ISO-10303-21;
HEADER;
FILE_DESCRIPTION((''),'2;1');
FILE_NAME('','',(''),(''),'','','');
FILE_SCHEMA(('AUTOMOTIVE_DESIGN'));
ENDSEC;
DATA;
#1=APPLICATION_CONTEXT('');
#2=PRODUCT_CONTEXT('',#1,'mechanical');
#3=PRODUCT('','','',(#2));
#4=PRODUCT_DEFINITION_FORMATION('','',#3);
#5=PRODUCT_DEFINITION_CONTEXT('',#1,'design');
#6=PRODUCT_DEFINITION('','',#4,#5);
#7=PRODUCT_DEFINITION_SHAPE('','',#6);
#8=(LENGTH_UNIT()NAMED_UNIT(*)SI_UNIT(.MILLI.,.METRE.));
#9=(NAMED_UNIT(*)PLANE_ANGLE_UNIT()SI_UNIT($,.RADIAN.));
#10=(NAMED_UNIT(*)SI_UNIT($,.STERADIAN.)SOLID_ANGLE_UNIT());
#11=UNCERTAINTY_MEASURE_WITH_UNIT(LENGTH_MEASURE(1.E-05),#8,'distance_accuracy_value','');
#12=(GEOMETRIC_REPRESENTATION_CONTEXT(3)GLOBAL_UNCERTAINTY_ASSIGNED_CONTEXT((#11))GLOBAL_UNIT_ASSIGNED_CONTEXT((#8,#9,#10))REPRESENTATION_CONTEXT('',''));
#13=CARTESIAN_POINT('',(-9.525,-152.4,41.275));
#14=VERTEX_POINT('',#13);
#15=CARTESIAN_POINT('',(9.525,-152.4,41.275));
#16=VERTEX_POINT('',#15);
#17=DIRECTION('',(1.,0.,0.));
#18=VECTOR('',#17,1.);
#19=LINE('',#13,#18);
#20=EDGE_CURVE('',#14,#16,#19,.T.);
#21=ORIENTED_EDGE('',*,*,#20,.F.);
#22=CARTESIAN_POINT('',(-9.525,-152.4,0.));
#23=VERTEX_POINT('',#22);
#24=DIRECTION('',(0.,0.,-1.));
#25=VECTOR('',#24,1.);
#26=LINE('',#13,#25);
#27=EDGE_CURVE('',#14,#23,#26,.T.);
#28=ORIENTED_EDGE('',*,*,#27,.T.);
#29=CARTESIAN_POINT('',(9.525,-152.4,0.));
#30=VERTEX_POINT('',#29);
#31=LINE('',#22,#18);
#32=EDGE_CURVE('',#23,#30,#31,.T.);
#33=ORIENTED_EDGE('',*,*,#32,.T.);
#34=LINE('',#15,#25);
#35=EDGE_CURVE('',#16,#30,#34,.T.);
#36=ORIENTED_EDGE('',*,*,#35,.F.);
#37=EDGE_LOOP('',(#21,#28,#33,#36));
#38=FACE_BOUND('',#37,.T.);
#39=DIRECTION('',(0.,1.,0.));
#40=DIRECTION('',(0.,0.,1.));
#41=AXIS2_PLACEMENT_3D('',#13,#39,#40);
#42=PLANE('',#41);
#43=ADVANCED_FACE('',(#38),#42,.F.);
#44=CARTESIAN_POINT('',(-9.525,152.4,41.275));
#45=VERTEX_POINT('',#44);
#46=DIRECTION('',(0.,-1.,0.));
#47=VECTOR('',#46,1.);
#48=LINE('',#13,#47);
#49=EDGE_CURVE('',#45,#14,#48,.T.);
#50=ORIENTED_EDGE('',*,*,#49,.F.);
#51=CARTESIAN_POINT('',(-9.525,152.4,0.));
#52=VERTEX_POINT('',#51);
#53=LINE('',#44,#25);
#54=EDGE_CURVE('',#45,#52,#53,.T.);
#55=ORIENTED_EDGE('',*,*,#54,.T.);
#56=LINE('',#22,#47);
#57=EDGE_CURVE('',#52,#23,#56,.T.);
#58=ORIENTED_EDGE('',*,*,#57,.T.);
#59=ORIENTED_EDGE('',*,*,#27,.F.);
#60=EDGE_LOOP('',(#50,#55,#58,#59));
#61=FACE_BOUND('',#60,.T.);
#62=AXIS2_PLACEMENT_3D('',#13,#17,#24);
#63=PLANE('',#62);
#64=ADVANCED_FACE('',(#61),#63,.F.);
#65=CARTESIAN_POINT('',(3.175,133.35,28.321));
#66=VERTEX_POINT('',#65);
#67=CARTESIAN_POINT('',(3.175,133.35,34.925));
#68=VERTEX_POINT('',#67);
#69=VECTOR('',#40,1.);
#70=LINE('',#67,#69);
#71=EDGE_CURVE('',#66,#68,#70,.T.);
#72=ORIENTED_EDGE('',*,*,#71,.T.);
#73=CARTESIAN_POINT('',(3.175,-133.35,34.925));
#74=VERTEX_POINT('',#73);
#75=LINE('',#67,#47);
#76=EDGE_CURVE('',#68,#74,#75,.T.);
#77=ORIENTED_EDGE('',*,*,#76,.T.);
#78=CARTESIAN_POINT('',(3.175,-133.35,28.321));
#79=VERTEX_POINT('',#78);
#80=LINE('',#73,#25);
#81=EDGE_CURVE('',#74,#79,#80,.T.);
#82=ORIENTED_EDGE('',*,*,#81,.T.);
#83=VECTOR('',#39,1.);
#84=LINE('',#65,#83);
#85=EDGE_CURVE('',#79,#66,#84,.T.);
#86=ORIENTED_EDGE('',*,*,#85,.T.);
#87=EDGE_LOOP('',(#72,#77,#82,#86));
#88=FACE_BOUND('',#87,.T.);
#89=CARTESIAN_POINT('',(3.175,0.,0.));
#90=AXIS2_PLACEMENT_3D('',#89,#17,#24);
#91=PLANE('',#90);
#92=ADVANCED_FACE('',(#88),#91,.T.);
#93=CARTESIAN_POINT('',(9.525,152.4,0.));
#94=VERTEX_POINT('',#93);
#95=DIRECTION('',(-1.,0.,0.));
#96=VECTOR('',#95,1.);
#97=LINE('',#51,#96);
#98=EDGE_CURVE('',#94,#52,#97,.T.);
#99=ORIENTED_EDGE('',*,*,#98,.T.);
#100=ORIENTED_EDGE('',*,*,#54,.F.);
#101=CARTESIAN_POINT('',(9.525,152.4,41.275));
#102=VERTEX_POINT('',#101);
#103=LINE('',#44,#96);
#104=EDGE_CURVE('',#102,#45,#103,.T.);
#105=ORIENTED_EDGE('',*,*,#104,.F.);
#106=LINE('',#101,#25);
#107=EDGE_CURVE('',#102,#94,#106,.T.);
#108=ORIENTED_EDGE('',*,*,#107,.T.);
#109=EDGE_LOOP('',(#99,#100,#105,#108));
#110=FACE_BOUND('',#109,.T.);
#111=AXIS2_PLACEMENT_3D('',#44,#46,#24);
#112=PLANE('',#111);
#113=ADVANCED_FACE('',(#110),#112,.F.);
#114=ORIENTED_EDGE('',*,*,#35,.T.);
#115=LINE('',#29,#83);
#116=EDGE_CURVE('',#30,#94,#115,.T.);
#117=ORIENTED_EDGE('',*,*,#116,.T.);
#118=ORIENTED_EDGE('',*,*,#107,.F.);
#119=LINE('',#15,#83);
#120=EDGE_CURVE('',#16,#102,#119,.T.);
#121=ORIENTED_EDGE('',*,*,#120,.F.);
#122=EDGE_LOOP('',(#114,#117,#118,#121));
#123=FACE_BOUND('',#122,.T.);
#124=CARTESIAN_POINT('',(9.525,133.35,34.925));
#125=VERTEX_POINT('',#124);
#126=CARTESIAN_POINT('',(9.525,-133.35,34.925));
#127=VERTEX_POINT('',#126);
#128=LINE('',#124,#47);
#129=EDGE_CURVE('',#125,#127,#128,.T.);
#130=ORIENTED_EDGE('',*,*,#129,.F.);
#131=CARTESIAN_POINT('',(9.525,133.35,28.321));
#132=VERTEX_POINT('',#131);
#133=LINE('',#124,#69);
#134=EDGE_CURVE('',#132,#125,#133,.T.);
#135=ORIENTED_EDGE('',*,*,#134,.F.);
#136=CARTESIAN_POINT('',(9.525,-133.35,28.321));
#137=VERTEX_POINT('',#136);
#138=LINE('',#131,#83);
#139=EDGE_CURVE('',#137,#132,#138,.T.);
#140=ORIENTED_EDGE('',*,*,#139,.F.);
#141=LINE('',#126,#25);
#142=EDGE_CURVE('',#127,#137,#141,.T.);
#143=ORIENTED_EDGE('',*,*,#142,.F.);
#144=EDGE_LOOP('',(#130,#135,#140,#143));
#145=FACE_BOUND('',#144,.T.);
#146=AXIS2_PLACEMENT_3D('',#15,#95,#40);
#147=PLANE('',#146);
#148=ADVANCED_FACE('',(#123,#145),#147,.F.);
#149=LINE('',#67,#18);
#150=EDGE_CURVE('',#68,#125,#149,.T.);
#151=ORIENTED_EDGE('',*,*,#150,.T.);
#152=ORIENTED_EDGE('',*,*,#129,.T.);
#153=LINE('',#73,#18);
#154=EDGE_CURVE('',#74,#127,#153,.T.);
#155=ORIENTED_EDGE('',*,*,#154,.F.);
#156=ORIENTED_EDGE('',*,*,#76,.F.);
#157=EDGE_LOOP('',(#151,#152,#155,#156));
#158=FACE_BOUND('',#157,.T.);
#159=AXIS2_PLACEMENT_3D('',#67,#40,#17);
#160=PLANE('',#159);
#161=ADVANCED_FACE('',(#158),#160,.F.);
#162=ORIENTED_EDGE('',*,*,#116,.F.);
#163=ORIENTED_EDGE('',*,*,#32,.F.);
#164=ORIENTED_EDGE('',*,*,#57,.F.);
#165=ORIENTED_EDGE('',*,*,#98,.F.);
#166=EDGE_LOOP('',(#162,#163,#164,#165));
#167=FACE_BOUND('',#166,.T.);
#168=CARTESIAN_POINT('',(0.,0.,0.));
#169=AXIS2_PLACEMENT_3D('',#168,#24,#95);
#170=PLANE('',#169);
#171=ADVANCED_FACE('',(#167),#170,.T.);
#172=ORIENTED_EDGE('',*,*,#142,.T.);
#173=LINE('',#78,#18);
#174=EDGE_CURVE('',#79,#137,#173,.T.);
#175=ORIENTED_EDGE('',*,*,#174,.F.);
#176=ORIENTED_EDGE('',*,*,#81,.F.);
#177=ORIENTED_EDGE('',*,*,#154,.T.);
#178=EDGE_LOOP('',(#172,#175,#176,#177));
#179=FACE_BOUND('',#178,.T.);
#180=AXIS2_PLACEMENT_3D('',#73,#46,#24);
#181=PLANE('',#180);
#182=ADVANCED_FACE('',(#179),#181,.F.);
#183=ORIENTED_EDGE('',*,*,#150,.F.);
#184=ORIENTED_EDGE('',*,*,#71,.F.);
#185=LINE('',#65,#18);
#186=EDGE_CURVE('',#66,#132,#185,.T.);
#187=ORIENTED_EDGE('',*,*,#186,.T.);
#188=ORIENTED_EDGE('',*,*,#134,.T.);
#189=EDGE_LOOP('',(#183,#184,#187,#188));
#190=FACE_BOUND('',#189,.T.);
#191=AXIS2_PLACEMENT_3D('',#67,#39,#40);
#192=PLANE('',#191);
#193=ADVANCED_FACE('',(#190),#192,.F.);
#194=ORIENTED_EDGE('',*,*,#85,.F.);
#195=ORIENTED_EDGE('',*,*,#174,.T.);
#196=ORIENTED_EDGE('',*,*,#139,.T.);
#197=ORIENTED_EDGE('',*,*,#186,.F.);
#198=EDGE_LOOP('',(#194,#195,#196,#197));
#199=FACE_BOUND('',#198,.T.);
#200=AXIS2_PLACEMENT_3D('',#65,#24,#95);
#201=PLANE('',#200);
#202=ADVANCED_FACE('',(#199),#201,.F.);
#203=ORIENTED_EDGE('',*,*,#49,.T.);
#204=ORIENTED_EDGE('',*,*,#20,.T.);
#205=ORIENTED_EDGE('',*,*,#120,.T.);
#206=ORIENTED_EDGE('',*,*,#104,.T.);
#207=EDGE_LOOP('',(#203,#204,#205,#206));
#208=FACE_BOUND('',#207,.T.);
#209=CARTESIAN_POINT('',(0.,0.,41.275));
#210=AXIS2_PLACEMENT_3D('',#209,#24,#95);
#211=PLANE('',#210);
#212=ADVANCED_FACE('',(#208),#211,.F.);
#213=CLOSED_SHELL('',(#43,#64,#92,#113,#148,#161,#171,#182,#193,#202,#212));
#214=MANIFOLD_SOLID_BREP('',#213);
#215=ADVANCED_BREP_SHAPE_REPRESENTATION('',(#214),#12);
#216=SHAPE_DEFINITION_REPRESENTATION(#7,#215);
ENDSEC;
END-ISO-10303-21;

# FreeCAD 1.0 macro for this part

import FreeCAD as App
import Part
import Sketcher
from FreeCAD import Vector
Q = App.Units.Quantity

doc = App.newDocument("Part")
params = doc.addObject("Spreadsheet::Sheet", "Params")
for row, (alias, value) in enumerate([
    ("sketch1_height", "12 in"),
    ("sketch1_width", "0.75 in"),
    ("pad1_length", "1.625 in"),
    ("sketch2_width", "10.5 in"),
    ("sketch2_height", "0.26 in"),
    ("pocket1_length", "0.25 in"),
], start=1):
    params.set(f"A{row}", alias)
    params.set(f"B{row}", "=" + value)
    params.setAlias(f"B{row}", alias)

body = doc.addObject("PartDesign::Body", "Body")

# Sketch on XY plane
sketch1 = body.newObject("Sketcher::SketchObject", "Sketch")
sketch1.AttachmentSupport = (doc.getObject("XY_Plane"), [""])
sketch1.MapMode = "FlatFace"
sketch1.addGeometry([
    Part.LineSegment(Vector(-10, 152, 0), Vector(-10, -152, 0)),
    Part.LineSegment(Vector(-10, -152, 0), Vector(10, -152, 0)),
    Part.LineSegment(Vector(10, -152, 0), Vector(10, 152, 0)),
    Part.LineSegment(Vector(10, 152, 0), Vector(-10, 152, 0)),
], False)
sketch1.addConstraint([
    Sketcher.Constraint("Coincident", 0, 2, 1, 1),
    Sketcher.Constraint("Coincident", 1, 2, 2, 1),
    Sketcher.Constraint("Coincident", 2, 2, 3, 1),
    Sketcher.Constraint("Coincident", 3, 2, 0, 1),
    Sketcher.Constraint("Vertical", 0),
    Sketcher.Constraint("Horizontal", 1),
    Sketcher.Constraint("Vertical", 2),
    Sketcher.Constraint("Horizontal", 3),
    Sketcher.Constraint("Symmetric", 0, 2, 2, 2, -1, 1),
    Sketcher.Constraint("DistanceY", 0, 2, 0, 1, Q("12 in")),
    Sketcher.Constraint("DistanceX", 1, 1, 1, 2, Q("0.75 in")),
])
sketch1.setExpression("Constraints[9]", "Params.sketch1_height")
sketch1.setExpression("Constraints[10]", "Params.sketch1_width")
pad1 = body.newObject("PartDesign::Pad", "Pad")
pad1.Profile = sketch1
pad1.setExpression("Length", "Params.pad1_length")

# Sketch on YZ plane
sketch2 = body.newObject("Sketcher::SketchObject", "Sketch001")
sketch2.AttachmentSupport = (doc.getObject("YZ_Plane"), [""])
sketch2.MapMode = "FlatFace"
sketch2.AttachmentOffset = App.Placement(Vector(0, 0, 0.375 * 25.4), App.Rotation())
sketch2.addGeometry([
    Part.LineSegment(Vector(133, 35, 0), Vector(-133, 35, 0)),
    Part.LineSegment(Vector(-133, 35, 0), Vector(-133, 28, 0)),
    Part.LineSegment(Vector(-133, 28, 0), Vector(133, 28, 0)),
    Part.LineSegment(Vector(133, 28, 0), Vector(133, 35, 0)),
], False)
sketch2.addConstraint([
    Sketcher.Constraint("Coincident", 0, 2, 1, 1),
    Sketcher.Constraint("Coincident", 1, 2, 2, 1),
    Sketcher.Constraint("Coincident", 2, 2, 3, 1),
    Sketcher.Constraint("Coincident", 3, 2, 0, 1),
    Sketcher.Constraint("Horizontal", 0),
    Sketcher.Constraint("Vertical", 1),
    Sketcher.Constraint("Horizontal", 2),
    Sketcher.Constraint("Vertical", 3),
    Sketcher.Constraint("DistanceX", 0, 2, 0, 1, Q("10.5 in")),
    Sketcher.Constraint("DistanceY", 1, 2, 1, 1, Q("0.26 in")),
    Sketcher.Constraint("DistanceX", 0, 2, -1, 1, Q("5.25 in")),
    Sketcher.Constraint("DistanceY", -1, 1, 0, 2, Q("1.375 in")),
])
sketch2.setExpression("Constraints[8]", "Params.sketch2_width")
sketch2.setExpression("Constraints[9]", "Params.sketch2_height")
pocket1 = body.newObject("PartDesign::Pocket", "Pocket")
pocket1.Profile = sketch2
pocket1.setExpression("Length", "Params.pocket1_length")

doc.recompute()
